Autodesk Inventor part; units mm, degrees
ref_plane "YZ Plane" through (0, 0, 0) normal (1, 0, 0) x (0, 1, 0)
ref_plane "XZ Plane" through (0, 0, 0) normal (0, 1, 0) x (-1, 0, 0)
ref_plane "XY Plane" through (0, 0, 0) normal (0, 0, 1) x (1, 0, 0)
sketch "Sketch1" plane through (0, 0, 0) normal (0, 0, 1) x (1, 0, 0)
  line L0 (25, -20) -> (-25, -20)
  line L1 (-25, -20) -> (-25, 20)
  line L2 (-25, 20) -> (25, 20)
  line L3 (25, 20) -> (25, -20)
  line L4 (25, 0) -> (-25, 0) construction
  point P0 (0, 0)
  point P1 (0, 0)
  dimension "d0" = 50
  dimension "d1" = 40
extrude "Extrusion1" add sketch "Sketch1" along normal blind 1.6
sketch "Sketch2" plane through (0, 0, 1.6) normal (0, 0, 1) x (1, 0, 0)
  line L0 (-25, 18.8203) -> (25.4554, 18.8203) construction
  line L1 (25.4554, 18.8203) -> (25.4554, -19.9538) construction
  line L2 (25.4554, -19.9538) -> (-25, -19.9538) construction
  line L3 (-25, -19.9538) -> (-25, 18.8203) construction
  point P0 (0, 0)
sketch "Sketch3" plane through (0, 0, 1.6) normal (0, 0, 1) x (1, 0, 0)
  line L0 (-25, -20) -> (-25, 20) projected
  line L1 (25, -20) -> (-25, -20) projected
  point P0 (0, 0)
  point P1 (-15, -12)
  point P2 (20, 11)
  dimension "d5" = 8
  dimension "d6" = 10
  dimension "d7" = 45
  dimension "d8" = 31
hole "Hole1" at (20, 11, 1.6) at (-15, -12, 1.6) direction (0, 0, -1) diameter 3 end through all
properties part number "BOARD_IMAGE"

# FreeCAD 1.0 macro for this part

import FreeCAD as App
import Part
import Sketcher
Q = App.Units.Quantity

doc = App.newDocument("Part")
body = doc.addObject("PartDesign::Body", "Body")

# Sketch on XY plane
sketch1 = body.newObject("Sketcher::SketchObject", "Sketch")
sketch1.AttachmentSupport = (doc.getObject("XY_Plane"), [""])
sketch1.MapMode = "FlatFace"
sketch1.addGeometry([
    Part.LineSegment(App.Vector(-25, -20, 0), App.Vector(25, -20, 0)),
    Part.LineSegment(App.Vector(25, -20, 0), App.Vector(25, 20, 0)),
    Part.LineSegment(App.Vector(25, 20, 0), App.Vector(-25, 20, 0)),
    Part.LineSegment(App.Vector(-25, 20, 0), App.Vector(-25, -20, 0)),
], False)
sketch1.addConstraint([
    Sketcher.Constraint("Coincident", 0, 2, 1, 1),
    Sketcher.Constraint("Coincident", 1, 2, 2, 1),
    Sketcher.Constraint("Coincident", 2, 2, 3, 1),
    Sketcher.Constraint("Coincident", 3, 2, 0, 1),
    Sketcher.Constraint("Horizontal", 0),
    Sketcher.Constraint("Vertical", 1),
    Sketcher.Constraint("Horizontal", 2),
    Sketcher.Constraint("Vertical", 3),
    Sketcher.Constraint("Symmetric", 0, 2, 2, 2, -1, 1),
    Sketcher.Constraint("DistanceX", 0, 1, 0, 2, Q("1.9685 in")),
    Sketcher.Constraint("DistanceY", 1, 1, 1, 2, Q("1.5748 in")),
])
pad1 = body.newObject("PartDesign::Pad", "Pad")
pad1.Profile = sketch1
pad1.Length = Q("0.0629921 in")

# Sketch on XY plane
sketch2 = body.newObject("Sketcher::SketchObject", "Sketch001")
sketch2.AttachmentSupport = (doc.getObject("XY_Plane"), [""])
sketch2.MapMode = "FlatFace"
sketch2.AttachmentOffset = App.Placement(App.Vector(0, 0, 0.0629921 * 25.4), App.Rotation())
sketch2.addGeometry([
    Part.Circle(App.Vector(20, 11, 0), App.Vector(0, 0, 1), 1.5),
    Part.Circle(App.Vector(-15, -12, 0), App.Vector(0, 0, 1), 1.5),
], False)
sketch2.addConstraint([
    Sketcher.Constraint("Equal", 0, 1),
    Sketcher.Constraint("Diameter", 0, Q("0.1181 in")),
    Sketcher.Constraint("DistanceX", -1, 1, 0, 3, Q("0.7874 in")),
    Sketcher.Constraint("DistanceY", 1, 3, 0, 3, Q("0.9055 in")),
    Sketcher.Constraint("DistanceY", -1, 1, 0, 3, 11.0),
    Sketcher.Constraint("DistanceX", 1, 3, -1, 1, 15.0),
])
doc.recompute()
hole = body.newObject("PartDesign::Hole", "Hole")
hole.Profile = sketch2
hole.ThreadType = "None"
hole.Diameter = Q("0.1181102 in")
hole.DepthType = "ThroughAll"

doc.recompute()
